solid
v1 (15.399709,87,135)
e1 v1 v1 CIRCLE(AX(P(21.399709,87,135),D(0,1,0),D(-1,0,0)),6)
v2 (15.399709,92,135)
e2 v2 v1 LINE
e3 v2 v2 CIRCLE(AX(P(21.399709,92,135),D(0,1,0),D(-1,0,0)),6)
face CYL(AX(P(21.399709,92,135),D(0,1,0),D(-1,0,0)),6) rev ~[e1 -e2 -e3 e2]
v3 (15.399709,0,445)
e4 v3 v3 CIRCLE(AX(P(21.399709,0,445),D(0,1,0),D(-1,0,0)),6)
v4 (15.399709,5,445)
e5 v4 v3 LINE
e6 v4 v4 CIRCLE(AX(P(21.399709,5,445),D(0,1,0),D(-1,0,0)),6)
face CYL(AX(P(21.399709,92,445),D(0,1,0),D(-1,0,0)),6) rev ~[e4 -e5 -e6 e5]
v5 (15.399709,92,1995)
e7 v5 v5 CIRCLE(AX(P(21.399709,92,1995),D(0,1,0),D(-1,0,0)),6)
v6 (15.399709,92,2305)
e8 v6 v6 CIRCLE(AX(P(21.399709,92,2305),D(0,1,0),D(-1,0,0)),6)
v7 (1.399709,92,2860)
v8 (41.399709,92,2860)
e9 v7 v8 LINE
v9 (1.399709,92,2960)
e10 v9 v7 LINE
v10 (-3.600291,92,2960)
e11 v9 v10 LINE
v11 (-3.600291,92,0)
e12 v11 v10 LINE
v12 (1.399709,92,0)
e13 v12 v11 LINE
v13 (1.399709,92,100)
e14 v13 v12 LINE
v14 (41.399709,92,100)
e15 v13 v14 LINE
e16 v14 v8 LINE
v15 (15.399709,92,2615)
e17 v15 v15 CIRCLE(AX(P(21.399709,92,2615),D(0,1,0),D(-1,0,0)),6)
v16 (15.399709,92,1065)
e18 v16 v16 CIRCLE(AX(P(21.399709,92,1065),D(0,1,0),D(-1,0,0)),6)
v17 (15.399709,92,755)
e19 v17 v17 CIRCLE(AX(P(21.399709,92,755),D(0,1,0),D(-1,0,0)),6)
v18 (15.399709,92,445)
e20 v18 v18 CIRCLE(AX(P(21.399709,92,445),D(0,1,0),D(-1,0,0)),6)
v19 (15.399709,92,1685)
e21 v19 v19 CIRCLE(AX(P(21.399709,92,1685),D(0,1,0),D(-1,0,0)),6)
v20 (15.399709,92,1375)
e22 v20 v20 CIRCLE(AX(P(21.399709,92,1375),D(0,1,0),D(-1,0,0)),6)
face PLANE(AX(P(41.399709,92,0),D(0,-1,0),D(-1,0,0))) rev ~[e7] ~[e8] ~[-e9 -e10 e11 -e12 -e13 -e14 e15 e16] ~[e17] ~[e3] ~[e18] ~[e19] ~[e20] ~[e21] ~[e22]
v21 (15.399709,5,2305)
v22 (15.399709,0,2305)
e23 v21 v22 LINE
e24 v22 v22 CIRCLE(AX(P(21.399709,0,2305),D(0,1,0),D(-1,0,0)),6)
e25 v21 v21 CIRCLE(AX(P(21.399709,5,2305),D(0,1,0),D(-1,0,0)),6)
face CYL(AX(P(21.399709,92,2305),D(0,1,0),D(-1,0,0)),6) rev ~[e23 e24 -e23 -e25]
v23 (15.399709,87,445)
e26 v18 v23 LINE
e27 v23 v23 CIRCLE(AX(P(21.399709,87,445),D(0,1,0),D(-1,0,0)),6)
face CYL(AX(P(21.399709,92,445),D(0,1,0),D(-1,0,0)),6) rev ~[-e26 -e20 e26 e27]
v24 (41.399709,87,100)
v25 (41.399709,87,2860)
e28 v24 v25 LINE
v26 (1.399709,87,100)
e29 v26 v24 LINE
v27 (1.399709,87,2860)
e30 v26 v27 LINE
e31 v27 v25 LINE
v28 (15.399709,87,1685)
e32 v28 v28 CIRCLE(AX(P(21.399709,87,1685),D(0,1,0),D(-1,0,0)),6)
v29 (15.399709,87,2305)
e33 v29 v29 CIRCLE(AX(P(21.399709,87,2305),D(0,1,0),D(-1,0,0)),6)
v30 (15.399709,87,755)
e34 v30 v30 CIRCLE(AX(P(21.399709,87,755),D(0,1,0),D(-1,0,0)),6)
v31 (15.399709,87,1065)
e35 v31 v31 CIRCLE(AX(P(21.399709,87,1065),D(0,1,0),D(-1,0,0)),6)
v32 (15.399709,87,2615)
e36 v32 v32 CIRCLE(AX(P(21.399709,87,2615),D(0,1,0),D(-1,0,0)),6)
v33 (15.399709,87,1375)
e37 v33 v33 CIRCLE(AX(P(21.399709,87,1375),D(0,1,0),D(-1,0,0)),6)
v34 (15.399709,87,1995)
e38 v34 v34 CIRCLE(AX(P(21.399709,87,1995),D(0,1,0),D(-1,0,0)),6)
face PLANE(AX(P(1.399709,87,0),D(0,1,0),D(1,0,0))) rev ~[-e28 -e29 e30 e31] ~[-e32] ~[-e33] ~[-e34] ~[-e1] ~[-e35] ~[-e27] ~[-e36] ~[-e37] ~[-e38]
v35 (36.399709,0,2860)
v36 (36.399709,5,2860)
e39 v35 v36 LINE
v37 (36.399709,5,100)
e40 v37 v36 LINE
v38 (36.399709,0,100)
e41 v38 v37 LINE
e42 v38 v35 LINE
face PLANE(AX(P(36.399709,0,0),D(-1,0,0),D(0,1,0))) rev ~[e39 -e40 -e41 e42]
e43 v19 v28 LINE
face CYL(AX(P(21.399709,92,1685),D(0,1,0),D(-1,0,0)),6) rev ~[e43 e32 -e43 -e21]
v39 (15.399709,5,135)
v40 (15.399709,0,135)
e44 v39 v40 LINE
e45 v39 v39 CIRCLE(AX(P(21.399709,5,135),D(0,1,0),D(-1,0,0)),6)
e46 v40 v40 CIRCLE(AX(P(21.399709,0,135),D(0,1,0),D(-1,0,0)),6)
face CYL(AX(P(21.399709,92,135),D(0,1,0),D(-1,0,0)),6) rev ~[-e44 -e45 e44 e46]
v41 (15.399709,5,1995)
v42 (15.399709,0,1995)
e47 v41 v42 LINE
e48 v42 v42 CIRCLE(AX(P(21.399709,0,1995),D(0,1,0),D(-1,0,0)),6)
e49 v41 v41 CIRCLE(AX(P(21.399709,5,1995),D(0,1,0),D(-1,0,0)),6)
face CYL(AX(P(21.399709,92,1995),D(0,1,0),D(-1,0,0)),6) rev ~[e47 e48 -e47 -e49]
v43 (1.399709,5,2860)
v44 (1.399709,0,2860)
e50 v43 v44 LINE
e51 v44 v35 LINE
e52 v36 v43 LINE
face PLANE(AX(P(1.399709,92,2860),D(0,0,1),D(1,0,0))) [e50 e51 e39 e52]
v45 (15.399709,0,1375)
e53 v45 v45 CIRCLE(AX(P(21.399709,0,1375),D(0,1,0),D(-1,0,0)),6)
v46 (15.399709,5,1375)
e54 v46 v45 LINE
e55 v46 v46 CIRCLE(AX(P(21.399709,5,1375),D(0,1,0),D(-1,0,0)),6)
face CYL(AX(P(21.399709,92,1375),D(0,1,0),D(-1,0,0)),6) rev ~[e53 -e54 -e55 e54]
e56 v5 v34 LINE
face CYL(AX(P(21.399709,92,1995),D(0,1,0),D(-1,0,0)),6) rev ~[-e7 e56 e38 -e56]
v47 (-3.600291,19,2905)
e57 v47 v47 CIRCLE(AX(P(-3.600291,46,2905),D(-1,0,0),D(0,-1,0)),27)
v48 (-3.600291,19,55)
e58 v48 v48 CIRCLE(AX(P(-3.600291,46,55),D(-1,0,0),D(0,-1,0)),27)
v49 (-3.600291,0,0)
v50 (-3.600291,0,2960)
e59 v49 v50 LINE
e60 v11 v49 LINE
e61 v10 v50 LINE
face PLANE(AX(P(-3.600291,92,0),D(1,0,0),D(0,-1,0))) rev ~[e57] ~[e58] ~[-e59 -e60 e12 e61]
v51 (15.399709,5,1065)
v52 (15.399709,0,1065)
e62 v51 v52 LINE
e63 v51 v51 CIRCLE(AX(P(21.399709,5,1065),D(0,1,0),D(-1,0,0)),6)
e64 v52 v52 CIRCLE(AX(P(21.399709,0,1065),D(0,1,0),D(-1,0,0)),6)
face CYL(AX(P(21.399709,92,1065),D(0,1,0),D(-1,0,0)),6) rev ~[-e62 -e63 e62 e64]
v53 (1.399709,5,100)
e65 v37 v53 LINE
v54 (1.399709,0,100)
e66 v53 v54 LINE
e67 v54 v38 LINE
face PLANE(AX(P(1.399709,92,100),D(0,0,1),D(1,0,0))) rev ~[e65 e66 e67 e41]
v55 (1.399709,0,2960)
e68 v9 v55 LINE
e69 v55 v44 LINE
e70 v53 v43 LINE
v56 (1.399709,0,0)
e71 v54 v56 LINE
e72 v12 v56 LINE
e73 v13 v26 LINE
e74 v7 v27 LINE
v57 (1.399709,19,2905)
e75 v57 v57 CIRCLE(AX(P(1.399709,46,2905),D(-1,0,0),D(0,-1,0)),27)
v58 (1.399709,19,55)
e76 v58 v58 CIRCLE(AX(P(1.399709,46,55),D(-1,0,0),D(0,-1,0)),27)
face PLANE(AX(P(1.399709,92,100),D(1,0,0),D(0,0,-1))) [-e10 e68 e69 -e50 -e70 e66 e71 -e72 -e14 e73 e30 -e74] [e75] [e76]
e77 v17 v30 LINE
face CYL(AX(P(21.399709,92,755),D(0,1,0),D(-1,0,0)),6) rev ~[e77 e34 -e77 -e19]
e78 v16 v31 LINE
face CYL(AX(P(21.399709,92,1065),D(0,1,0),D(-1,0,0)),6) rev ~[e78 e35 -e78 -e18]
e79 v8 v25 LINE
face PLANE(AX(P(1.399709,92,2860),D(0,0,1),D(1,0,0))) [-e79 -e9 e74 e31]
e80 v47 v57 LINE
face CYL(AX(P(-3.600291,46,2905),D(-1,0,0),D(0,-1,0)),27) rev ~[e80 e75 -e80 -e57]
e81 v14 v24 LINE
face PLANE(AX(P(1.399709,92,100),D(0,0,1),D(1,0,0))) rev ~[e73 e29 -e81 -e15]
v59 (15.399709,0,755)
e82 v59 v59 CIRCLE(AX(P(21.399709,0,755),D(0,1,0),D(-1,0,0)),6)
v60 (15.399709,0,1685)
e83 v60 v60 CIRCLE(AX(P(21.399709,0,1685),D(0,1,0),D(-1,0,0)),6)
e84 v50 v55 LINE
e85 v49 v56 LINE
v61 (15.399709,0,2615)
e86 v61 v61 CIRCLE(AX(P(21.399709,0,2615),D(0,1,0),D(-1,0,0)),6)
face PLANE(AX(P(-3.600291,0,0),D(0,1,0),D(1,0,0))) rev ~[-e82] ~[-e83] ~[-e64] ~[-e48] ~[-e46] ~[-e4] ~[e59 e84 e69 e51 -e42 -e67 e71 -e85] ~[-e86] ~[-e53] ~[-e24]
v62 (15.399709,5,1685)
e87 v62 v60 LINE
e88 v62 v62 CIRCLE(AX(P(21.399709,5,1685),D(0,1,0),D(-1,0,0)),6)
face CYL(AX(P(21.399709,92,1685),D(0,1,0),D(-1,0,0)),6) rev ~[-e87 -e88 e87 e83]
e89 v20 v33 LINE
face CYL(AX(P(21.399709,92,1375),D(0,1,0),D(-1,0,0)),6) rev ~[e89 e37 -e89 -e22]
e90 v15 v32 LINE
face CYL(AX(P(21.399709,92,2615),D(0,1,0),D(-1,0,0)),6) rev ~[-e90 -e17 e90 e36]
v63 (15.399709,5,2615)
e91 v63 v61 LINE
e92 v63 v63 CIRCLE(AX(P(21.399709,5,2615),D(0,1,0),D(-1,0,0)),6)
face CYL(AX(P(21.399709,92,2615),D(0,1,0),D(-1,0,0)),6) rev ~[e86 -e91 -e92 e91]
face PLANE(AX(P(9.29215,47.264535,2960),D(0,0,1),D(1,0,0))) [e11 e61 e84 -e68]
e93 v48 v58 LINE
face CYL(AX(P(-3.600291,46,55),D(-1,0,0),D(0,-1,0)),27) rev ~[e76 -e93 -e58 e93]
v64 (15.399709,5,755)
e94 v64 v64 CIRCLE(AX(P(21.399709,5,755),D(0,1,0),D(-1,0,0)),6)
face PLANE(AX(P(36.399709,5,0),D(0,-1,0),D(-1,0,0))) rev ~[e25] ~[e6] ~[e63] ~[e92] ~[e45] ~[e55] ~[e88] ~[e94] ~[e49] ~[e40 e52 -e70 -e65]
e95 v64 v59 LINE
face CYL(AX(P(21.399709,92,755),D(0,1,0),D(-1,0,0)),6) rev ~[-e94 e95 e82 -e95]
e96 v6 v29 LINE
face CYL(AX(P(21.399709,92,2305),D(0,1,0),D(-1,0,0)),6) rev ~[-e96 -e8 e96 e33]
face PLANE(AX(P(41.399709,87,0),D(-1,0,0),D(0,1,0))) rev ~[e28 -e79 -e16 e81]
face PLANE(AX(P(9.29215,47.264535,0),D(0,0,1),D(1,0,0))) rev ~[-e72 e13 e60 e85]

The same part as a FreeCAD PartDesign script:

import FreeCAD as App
import Part
import Sketcher
from FreeCAD import Vector
Q = App.Units.Quantity


def add_polygon(sketch, points):
    """Adds a closed chain of lines whose ends are joined by coincident constraints."""
    first, n = sketch.GeometryCount, len(points)
    for a, b in zip(points, points[1:] + points[:1]):
        sketch.addGeometry(Part.LineSegment(App.Vector(*a, 0), App.Vector(*b, 0)), False)
    for i in range(n):
        sketch.addConstraint(Sketcher.Constraint("Coincident", first + i, 2, first + (i + 1) % n, 1))

doc = App.newDocument("Part")
body = doc.addObject("PartDesign::Body", "Body")

# Sketch on XY plane
sketch1 = body.newObject("Sketcher::SketchObject", "Sketch")
sketch1.AttachmentSupport = (doc.getObject("XY_Plane"), [""])
sketch1.MapMode = "FlatFace"
add_polygon(sketch1, [(-4, 0), (36, 0), (36, 5), (1, 5), (1, 87), (41, 87), (41, 92), (-4, 92)])  # lines 0-7
sketch1.addConstraint([
    Sketcher.Constraint("Horizontal", 0),
    Sketcher.Constraint("Vertical", 1),
    Sketcher.Constraint("Horizontal", 2),
    Sketcher.Constraint("Vertical", 3),
    Sketcher.Constraint("Horizontal", 4),
    Sketcher.Constraint("Vertical", 5),
    Sketcher.Constraint("Horizontal", 6),
    Sketcher.Constraint("Vertical", 7),
    Sketcher.Constraint("PointOnObject", 0, 2, -1),
    Sketcher.Constraint("Equal", 0, 4),
    Sketcher.Constraint("Equal", 1, 5),
    Sketcher.Constraint("DistanceX", 0, 1, 0, 2, Q("40 mm")),
    Sketcher.Constraint("DistanceX", 2, 2, 2, 1, Q("35 mm")),
    Sketcher.Constraint("DistanceY", 1, 1, 1, 2, Q("5 mm")),
    Sketcher.Constraint("DistanceY", 3, 1, 3, 2, Q("82 mm")),
    Sketcher.Constraint("DistanceX", -1, 1, 0, 2, Q("36.399709 mm")),
])
pad1 = body.newObject("PartDesign::Pad", "Pad")
pad1.Profile = sketch1
pad1.Length = 2960

# Sketch on XZ plane
sketch2 = body.newObject("Sketcher::SketchObject", "Sketch001")
sketch2.AttachmentSupport = (doc.getObject("XZ_Plane"), [""])
sketch2.MapMode = "FlatFace"
sketch2.AttachmentOffset = App.Placement(Vector(0, 0, -92), App.Rotation())
sketch2.addGeometry(Part.Circle(Vector(21, 135, 0), Vector(0, 0, 1), 6), False)
sketch2.addConstraint([
    Sketcher.Constraint("Diameter", 0, Q("12 mm")),
    Sketcher.Constraint("DistanceY", -1, 1, 0, 3, Q("135 mm")),
    Sketcher.Constraint("DistanceX", -1, 1, 0, 3, Q("21.399709 mm")),
])
pocket1 = body.newObject("PartDesign::Pocket", "Pocket")
pocket1.Profile = sketch2
pocket1.Type = "ThroughAll"
pocket1.Reversed = True

# Sketch on XZ plane
sketch3 = body.newObject("Sketcher::SketchObject", "Sketch002")
sketch3.AttachmentSupport = (doc.getObject("XZ_Plane"), [""])
sketch3.MapMode = "FlatFace"
sketch3.AttachmentOffset = App.Placement(Vector(0, 0, -92), App.Rotation())
add_polygon(sketch3, [(1, 2860), (1, 2960), (41, 2960), (41, 2860)])  # lines 0-3
add_polygon(sketch3, [(1, 0), (1, 100), (41, 100), (41, 0)])  # lines 4-7
sketch3.addConstraint([
    Sketcher.Constraint("Vertical", 0),
    Sketcher.Constraint("Horizontal", 1),
    Sketcher.Constraint("Vertical", 2),
    Sketcher.Constraint("Horizontal", 3),
    Sketcher.Constraint("Vertical", 4),
    Sketcher.Constraint("Horizontal", 5),
    Sketcher.Constraint("Vertical", 6),
    Sketcher.Constraint("Horizontal", 7),
    Sketcher.Constraint("PointOnObject", 6, 2, -1),
    Sketcher.Constraint("Vertical", 3, 2, 4, 2),
    Sketcher.Constraint("Vertical", 2, 2, 5, 2),
    Sketcher.Constraint("Equal", 2, 4),
    Sketcher.Constraint("DistanceX", 1, 1, 1, 2, Q("40 mm")),
    Sketcher.Constraint("DistanceY", 0, 1, 0, 2, Q("100 mm")),
    Sketcher.Constraint("DistanceY", -1, 1, 0, 2, Q("2960 mm")),
    Sketcher.Constraint("DistanceX", -1, 1, 0, 2, Q("1.399709 mm")),
])
pocket2 = body.newObject("PartDesign::Pocket", "Pocket001")
pocket2.Profile = sketch3
pocket2.Type = "ThroughAll"
pocket2.Reversed = True
doc.recompute()

linearpattern = body.newObject("PartDesign::LinearPattern", "LinearPattern")
linearpattern.Originals = [pocket1]
linearpattern.Direction = (doc.getObject("Z_Axis"), [""])
linearpattern.Mode = "offset"
linearpattern.Offset = 310
linearpattern.Occurrences = 24
body.Tip = linearpattern

# Sketch on YZ plane
sketch4 = body.newObject("Sketcher::SketchObject", "Sketch003")
sketch4.AttachmentSupport = (doc.getObject("YZ_Plane"), [""])
sketch4.MapMode = "FlatFace"
sketch4.AttachmentOffset = App.Placement(Vector(0, 0, -3.600291), App.Rotation())
sketch4.addGeometry([
    Part.Circle(Vector(46, 55, 0), Vector(0, 0, 1), 27),
    Part.Circle(Vector(46, 2905, 0), Vector(0, 0, 1), 27),
], False)
sketch4.addConstraint([
    Sketcher.Constraint("Equal", 0, 1),
    Sketcher.Constraint("Vertical", 0, 3, 1, 3),
    Sketcher.Constraint("Diameter", 0, Q("54 mm")),
    Sketcher.Constraint("DistanceX", -1, 1, 0, 3, Q("46 mm")),
    Sketcher.Constraint("DistanceY", -1, 1, 0, 3, Q("55 mm")),
    Sketcher.Constraint("DistanceY", -1, 1, 1, 3, Q("2905 mm")),
])
pocket3 = body.newObject("PartDesign::Pocket", "Pocket002")
pocket3.Profile = sketch4
pocket3.Type = "ThroughAll"
pocket3.Reversed = True

doc.recompute()
